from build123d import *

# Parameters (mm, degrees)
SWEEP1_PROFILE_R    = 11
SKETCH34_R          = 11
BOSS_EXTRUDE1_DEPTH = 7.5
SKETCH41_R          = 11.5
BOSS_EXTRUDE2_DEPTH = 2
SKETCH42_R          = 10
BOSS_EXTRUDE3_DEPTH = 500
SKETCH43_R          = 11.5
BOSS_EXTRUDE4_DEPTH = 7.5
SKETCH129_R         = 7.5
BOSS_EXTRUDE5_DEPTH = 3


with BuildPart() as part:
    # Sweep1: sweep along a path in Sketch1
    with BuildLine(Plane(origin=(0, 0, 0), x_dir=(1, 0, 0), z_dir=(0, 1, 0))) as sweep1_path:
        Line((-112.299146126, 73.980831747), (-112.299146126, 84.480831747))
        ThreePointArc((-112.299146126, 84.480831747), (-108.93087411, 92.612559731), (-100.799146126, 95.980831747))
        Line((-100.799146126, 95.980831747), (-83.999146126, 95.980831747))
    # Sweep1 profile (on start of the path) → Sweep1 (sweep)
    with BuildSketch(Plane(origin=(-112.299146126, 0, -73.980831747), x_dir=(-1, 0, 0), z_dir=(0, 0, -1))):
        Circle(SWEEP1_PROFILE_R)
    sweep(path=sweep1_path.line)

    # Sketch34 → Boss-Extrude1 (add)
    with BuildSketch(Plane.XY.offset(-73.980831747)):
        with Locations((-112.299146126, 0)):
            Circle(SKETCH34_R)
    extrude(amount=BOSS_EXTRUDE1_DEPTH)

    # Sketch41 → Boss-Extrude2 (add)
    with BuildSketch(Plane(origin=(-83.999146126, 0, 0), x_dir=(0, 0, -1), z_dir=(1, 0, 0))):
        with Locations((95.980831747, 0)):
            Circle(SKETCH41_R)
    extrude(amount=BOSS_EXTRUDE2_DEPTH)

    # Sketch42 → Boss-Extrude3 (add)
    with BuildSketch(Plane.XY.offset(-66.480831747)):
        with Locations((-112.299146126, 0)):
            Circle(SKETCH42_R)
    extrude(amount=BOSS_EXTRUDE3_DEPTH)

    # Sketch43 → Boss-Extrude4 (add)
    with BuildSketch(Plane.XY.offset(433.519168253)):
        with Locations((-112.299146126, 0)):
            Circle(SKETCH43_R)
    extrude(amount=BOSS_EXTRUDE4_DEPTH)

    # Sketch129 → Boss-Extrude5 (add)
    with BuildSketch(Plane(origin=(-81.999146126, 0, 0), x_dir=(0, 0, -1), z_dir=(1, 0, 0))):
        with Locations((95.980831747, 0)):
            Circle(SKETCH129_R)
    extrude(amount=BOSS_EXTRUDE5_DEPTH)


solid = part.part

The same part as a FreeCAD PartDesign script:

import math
import FreeCAD as App
import Part
import Sketcher
Q = App.Units.Quantity

doc = App.newDocument("Part")
body = doc.addObject("PartDesign::Body", "Body")

# Sketch on XY plane
sketch1 = doc.addObject("Sketcher::SketchObject", "Sketch")
body.addObject(sketch1)
sketch1.AttachmentSupport = (doc.XY_Plane, [""])
sketch1.MapMode = "FlatFace"
sketch1.AttachmentOffset = App.Placement(App.Vector(0, 0, -73.980832), App.Rotation())
sketch1.addGeometry(Part.Circle(App.Vector(-112, 0, 0), App.Vector(0, 0, 1), 11), False)
sketch1.addConstraint(Sketcher.Constraint("PointOnObject", 0, 3, -1))
sketch1.addConstraint(Sketcher.Constraint("Diameter", 0, Q("22 mm")))
sketch1.addConstraint(Sketcher.Constraint("DistanceX", 0, 3, -1, 1, Q("112.299146 mm")))

# Sketch on XZ plane
sketch2 = doc.addObject("Sketcher::SketchObject", "Sketch001")
body.addObject(sketch2)
sketch2.AttachmentSupport = (doc.XZ_Plane, [""])
sketch2.MapMode = "FlatFace"
sketch2.addGeometry(Part.LineSegment(App.Vector(-112, -74, 0), App.Vector(-112, -84, 0)), False)
sketch2.addGeometry(Part.ArcOfCircle(Part.Circle(App.Vector(-101, -84, 0), App.Vector(0, 0, 1), 11), math.radians(180), math.radians(270)), False)
sketch2.addGeometry(Part.LineSegment(App.Vector(-101, -96, 0), App.Vector(-84, -96, 0)), False)
sketch2.addConstraint(Sketcher.Constraint("Tangent", 0, 2, 1, 1))
sketch2.addConstraint(Sketcher.Constraint("Tangent", 1, 2, 2, 1))
sketch2.addConstraint(Sketcher.Constraint("Vertical", 0))
sketch2.addConstraint(Sketcher.Constraint("Horizontal", 2))
sketch2.addConstraint(Sketcher.Constraint("Radius", 1, Q("11.5 mm")))
sketch2.addConstraint(Sketcher.Constraint("DistanceX", 2, 1, 2, 2, Q("16.8 mm")))
sketch2.addConstraint(Sketcher.Constraint("DistanceY", 0, 2, 0, 1, Q("10.5 mm")))
sketch2.addConstraint(Sketcher.Constraint("DistanceY", 1, 3, -1, 1, Q("84.480832 mm")))
sketch2.addConstraint(Sketcher.Constraint("DistanceX", 1, 3, -1, 1, Q("100.799146 mm")))
doc.recompute()

additivepipe = doc.addObject("PartDesign::AdditivePipe", "AdditivePipe")
body.addObject(additivepipe)
additivepipe.Profile = sketch1
additivepipe.Spine = (sketch2, ["Edge1", "Edge2", "Edge3"])

# Sketch on XY plane
sketch3 = doc.addObject("Sketcher::SketchObject", "Sketch002")
body.addObject(sketch3)
sketch3.AttachmentSupport = (doc.XY_Plane, [""])
sketch3.MapMode = "FlatFace"
sketch3.AttachmentOffset = App.Placement(App.Vector(0, 0, -73.980832), App.Rotation())
sketch3.addGeometry(Part.Circle(App.Vector(-112, 0, 0), App.Vector(0, 0, 1), 11), False)
sketch3.addConstraint(Sketcher.Constraint("PointOnObject", 0, 3, -1))
sketch3.addConstraint(Sketcher.Constraint("Diameter", 0, Q("22 mm")))
sketch3.addConstraint(Sketcher.Constraint("DistanceX", 0, 3, -1, 1, Q("112.299146 mm")))
pad1 = doc.addObject("PartDesign::Pad", "Pad")
body.addObject(pad1)
pad1.Profile = sketch3
pad1.Length = 7.5

# Sketch on YZ plane
sketch4 = doc.addObject("Sketcher::SketchObject", "Sketch003")
body.addObject(sketch4)
sketch4.AttachmentSupport = (doc.YZ_Plane, [""])
sketch4.MapMode = "FlatFace"
sketch4.AttachmentOffset = App.Placement(App.Vector(0, 0, -83.999146), App.Rotation())
sketch4.addGeometry(Part.Circle(App.Vector(0, -96, 0), App.Vector(0, 0, 1), 12), False)
sketch4.addConstraint(Sketcher.Constraint("PointOnObject", 0, 3, -2))
sketch4.addConstraint(Sketcher.Constraint("Diameter", 0, Q("23 mm")))
sketch4.addConstraint(Sketcher.Constraint("DistanceY", 0, 3, -1, 1, Q("95.980832 mm")))
pad2 = doc.addObject("PartDesign::Pad", "Pad001")
body.addObject(pad2)
pad2.Profile = sketch4
pad2.Length = 2

# Sketch on XY plane
sketch5 = doc.addObject("Sketcher::SketchObject", "Sketch004")
body.addObject(sketch5)
sketch5.AttachmentSupport = (doc.XY_Plane, [""])
sketch5.MapMode = "FlatFace"
sketch5.AttachmentOffset = App.Placement(App.Vector(0, 0, -66.480832), App.Rotation())
sketch5.addGeometry(Part.Circle(App.Vector(-112, 0, 0), App.Vector(0, 0, 1), 10), False)
sketch5.addConstraint(Sketcher.Constraint("PointOnObject", 0, 3, -1))
sketch5.addConstraint(Sketcher.Constraint("Diameter", 0, Q("20 mm")))
sketch5.addConstraint(Sketcher.Constraint("DistanceX", 0, 3, -1, 1, Q("112.299146 mm")))
pad3 = doc.addObject("PartDesign::Pad", "Pad002")
body.addObject(pad3)
pad3.Profile = sketch5
pad3.Length = 500

# Sketch on XY plane
sketch6 = doc.addObject("Sketcher::SketchObject", "Sketch005")
body.addObject(sketch6)
sketch6.AttachmentSupport = (doc.XY_Plane, [""])
sketch6.MapMode = "FlatFace"
sketch6.AttachmentOffset = App.Placement(App.Vector(0, 0, 433.519168), App.Rotation())
sketch6.addGeometry(Part.Circle(App.Vector(-112, 0, 0), App.Vector(0, 0, 1), 12), False)
sketch6.addConstraint(Sketcher.Constraint("PointOnObject", 0, 3, -1))
sketch6.addConstraint(Sketcher.Constraint("Diameter", 0, Q("23 mm")))
sketch6.addConstraint(Sketcher.Constraint("DistanceX", 0, 3, -1, 1, Q("112.299146 mm")))
pad4 = doc.addObject("PartDesign::Pad", "Pad003")
body.addObject(pad4)
pad4.Profile = sketch6
pad4.Length = 7.5

# Sketch on YZ plane
sketch7 = doc.addObject("Sketcher::SketchObject", "Sketch006")
body.addObject(sketch7)
sketch7.AttachmentSupport = (doc.YZ_Plane, [""])
sketch7.MapMode = "FlatFace"
sketch7.AttachmentOffset = App.Placement(App.Vector(0, 0, -81.999146), App.Rotation())
sketch7.addGeometry(Part.Circle(App.Vector(0, -96, 0), App.Vector(0, 0, 1), 8), False)
sketch7.addConstraint(Sketcher.Constraint("PointOnObject", 0, 3, -2))
sketch7.addConstraint(Sketcher.Constraint("Diameter", 0, Q("15 mm")))
sketch7.addConstraint(Sketcher.Constraint("DistanceY", 0, 3, -1, 1, Q("95.980832 mm")))
pad5 = doc.addObject("PartDesign::Pad", "Pad004")
body.addObject(pad5)
pad5.Profile = sketch7
pad5.Length = 3

doc.recompute()
